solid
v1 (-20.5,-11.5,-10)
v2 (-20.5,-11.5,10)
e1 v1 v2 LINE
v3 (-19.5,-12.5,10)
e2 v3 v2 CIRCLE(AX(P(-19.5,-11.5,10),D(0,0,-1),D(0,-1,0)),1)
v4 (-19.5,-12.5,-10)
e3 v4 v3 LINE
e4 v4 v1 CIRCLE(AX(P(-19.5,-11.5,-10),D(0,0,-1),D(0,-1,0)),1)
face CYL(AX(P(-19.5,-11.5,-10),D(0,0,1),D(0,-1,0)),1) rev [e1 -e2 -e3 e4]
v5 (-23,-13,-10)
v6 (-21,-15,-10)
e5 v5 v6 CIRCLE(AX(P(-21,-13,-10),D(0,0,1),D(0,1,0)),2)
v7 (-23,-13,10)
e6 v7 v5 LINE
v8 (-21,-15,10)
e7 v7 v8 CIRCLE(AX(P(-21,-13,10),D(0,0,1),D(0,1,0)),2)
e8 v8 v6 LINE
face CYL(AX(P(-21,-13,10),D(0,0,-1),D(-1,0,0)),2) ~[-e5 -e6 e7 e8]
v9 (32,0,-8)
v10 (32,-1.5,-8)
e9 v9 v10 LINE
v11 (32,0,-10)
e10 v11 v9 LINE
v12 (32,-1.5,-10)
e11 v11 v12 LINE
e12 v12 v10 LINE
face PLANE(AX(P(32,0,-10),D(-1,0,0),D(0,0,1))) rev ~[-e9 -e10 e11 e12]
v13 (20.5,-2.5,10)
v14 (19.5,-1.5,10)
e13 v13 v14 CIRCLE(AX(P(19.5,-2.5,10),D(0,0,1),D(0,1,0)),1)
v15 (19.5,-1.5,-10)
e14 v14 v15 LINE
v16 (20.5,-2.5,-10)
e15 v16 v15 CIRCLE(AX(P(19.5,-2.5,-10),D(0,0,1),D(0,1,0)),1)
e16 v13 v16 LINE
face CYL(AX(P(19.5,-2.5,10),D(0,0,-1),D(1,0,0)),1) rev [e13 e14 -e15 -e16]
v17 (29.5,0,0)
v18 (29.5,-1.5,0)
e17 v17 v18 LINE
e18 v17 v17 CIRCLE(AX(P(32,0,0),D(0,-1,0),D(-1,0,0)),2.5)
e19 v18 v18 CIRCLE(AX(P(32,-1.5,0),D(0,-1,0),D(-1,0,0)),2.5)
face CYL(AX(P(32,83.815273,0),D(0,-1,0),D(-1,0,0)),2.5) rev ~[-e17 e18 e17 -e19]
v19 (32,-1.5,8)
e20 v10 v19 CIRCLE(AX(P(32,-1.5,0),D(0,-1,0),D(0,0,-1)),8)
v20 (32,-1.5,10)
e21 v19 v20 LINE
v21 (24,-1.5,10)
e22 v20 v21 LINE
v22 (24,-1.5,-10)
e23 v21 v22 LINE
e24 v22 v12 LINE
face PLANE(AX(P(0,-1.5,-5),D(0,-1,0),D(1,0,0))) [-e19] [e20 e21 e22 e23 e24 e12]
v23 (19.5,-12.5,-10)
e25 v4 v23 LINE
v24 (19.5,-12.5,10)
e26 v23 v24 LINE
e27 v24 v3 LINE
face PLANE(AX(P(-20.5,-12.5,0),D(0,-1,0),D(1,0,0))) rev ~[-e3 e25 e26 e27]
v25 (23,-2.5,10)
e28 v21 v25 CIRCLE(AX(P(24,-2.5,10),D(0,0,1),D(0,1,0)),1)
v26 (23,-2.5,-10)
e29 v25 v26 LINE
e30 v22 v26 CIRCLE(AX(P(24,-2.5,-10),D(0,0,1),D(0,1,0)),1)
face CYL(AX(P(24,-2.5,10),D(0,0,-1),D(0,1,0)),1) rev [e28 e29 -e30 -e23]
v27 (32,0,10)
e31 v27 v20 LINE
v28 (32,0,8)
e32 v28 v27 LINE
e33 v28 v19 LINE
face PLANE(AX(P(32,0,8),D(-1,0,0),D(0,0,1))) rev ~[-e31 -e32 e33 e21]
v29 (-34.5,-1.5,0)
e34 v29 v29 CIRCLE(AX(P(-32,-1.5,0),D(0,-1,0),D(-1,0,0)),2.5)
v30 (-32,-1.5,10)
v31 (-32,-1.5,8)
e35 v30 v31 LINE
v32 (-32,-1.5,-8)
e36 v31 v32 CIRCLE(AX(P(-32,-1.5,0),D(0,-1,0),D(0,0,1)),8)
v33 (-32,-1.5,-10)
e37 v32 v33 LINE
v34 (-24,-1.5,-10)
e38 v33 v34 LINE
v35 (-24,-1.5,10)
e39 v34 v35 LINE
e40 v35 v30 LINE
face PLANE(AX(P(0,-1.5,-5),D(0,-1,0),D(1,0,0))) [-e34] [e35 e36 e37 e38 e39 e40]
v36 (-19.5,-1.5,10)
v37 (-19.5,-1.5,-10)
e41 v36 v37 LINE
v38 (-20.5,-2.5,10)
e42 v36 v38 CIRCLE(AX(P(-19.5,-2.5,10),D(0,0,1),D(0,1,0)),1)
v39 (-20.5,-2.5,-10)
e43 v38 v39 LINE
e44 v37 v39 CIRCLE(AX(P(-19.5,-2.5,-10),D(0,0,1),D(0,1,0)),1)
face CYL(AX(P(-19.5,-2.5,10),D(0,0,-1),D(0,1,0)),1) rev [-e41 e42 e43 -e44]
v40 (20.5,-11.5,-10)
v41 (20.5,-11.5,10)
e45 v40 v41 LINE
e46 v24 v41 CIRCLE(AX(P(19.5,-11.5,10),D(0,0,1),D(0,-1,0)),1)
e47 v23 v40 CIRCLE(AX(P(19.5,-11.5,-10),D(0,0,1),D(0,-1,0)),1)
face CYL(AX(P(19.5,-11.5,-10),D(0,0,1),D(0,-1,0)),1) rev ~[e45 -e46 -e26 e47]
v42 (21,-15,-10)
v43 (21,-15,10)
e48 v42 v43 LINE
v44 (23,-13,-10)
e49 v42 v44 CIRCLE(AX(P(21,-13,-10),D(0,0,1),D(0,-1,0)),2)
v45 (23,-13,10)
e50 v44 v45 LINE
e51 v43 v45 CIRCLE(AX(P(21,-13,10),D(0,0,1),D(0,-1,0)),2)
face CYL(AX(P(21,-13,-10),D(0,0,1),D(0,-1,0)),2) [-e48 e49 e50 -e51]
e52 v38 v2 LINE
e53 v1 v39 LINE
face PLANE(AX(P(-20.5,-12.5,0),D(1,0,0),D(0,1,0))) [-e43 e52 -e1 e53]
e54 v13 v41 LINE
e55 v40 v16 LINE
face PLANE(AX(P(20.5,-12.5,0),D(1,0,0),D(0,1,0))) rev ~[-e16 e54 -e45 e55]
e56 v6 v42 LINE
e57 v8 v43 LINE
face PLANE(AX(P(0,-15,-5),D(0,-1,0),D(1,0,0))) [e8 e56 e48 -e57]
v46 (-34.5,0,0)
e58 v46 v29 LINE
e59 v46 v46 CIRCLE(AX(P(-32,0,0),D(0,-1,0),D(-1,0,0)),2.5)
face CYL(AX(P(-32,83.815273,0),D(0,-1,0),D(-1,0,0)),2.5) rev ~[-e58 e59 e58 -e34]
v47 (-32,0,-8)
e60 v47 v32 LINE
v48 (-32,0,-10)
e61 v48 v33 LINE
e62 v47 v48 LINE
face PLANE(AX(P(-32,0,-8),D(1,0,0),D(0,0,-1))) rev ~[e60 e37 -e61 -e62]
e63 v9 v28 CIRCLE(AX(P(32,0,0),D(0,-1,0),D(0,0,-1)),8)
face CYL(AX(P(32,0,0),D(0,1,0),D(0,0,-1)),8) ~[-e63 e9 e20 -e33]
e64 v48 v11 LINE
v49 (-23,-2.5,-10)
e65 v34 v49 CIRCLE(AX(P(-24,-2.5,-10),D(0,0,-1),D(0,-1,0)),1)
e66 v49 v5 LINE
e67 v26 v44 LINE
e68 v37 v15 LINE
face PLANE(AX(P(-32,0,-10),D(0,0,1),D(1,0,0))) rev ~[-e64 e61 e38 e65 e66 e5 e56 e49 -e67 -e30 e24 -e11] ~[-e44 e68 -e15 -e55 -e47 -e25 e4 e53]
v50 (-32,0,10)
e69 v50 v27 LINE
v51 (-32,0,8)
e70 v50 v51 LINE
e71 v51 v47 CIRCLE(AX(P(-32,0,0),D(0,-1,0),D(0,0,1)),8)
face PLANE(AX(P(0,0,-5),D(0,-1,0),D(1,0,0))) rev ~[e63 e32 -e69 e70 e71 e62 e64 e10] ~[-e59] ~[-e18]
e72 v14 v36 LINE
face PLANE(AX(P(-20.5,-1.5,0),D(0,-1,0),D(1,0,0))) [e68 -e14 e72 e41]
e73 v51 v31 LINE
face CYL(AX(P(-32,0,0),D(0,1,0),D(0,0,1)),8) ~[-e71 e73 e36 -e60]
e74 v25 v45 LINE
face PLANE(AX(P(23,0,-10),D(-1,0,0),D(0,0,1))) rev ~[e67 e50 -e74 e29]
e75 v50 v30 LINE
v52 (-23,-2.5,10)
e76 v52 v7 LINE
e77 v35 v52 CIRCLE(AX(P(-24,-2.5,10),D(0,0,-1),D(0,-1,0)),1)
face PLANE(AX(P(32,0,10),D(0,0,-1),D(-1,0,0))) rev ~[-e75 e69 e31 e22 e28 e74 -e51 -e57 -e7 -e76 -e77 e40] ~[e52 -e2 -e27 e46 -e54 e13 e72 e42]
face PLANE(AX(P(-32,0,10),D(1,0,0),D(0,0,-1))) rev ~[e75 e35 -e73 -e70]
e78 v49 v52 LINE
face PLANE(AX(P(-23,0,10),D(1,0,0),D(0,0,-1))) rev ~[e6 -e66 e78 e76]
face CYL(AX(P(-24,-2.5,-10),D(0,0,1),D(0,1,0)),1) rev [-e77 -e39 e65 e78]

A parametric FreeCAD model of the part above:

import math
import FreeCAD as App
import Part
import Sketcher
Q = App.Units.Quantity


def edges_at(feature, points):
    """Names of the edges that pass closest to the given points."""
    edges = feature.Shape.Edges
    near = lambda p: min(range(len(edges)), key=lambda i: edges[i].distToShape(Part.Vertex(*p))[0])
    return sorted({f"Edge{near(p) + 1}" for p in points})


def add_polygon(sketch, points):
    """Adds a closed chain of lines whose ends are joined by coincident constraints."""
    first, n = sketch.GeometryCount, len(points)
    for a, b in zip(points, points[1:] + points[:1]):
        sketch.addGeometry(Part.LineSegment(App.Vector(*a, 0), App.Vector(*b, 0)), False)
    for i in range(n):
        sketch.addConstraint(Sketcher.Constraint("Coincident", first + i, 2, first + (i + 1) % n, 1))

doc = App.newDocument("Part")
body = doc.addObject("PartDesign::Body", "Body")

sketch1 = body.newObject("Sketcher::SketchObject", "Sketch")
sketch1.AttachmentSupport = (doc.getObject("XZ_Plane"), [""])
sketch1.MapMode = "FlatFace"
sketch1.addGeometry([
    Part.LineSegment(App.Vector(32, -10, 0), App.Vector(32, -8, 0)),
    Part.ArcOfCircle(Part.Circle(App.Vector(32, 0, 0), App.Vector(0, 0, 1), 8), math.radians(-90), math.radians(90)),
    Part.LineSegment(App.Vector(32, 8, 0), App.Vector(32, 10, 0)),
    Part.LineSegment(App.Vector(32, 10, 0), App.Vector(-32, 10, 0)),
    Part.LineSegment(App.Vector(-32, 10, 0), App.Vector(-32, 8, 0)),
    Part.ArcOfCircle(Part.Circle(App.Vector(-32, 0, 0), App.Vector(0, 0, 1), 8), math.radians(90), math.radians(270)),
    Part.LineSegment(App.Vector(-32, -8, 0), App.Vector(-32, -10, 0)),
    Part.LineSegment(App.Vector(-32, -10, 0), App.Vector(32, -10, 0)),
], False)
sketch1.addConstraint([
    Sketcher.Constraint("Coincident", 0, 2, 1, 1),
    Sketcher.Constraint("Coincident", 1, 2, 2, 1),
    Sketcher.Constraint("Coincident", 2, 2, 3, 1),
    Sketcher.Constraint("Coincident", 3, 2, 4, 1),
    Sketcher.Constraint("Coincident", 4, 2, 5, 1),
    Sketcher.Constraint("Coincident", 5, 2, 6, 1),
    Sketcher.Constraint("Coincident", 6, 2, 7, 1),
    Sketcher.Constraint("Coincident", 7, 2, 0, 1),
    Sketcher.Constraint("Vertical", 0),
    Sketcher.Constraint("Vertical", 2),
    Sketcher.Constraint("Horizontal", 3),
    Sketcher.Constraint("Vertical", 4),
    Sketcher.Constraint("Vertical", 6),
    Sketcher.Constraint("Horizontal", 7),
    Sketcher.Constraint("Equal", 1, 5),
    Sketcher.Constraint("Symmetric", 1, 3, 5, 3, -1, 1),
    Sketcher.Constraint("Symmetric", 2, 2, 6, 2, -1, 1),
    Sketcher.Constraint("Symmetric", 1, 2, 4, 2, -2),
    Sketcher.Constraint("Vertical", 1, 3, 0, 2),
    Sketcher.Constraint("Vertical", 0, 2, 1, 2),
    Sketcher.Constraint("Radius", 1, Q("8 mm")),
    Sketcher.Constraint("DistanceX", 3, 2, 3, 1, Q("64 mm")),
    Sketcher.Constraint("DistanceY", 0, 1, 0, 2, Q("2 mm")),
])
pad1 = body.newObject("PartDesign::Pad", "Pad")
pad1.Profile = sketch1
pad1.Length = 1.5

sketch2 = body.newObject("Sketcher::SketchObject", "Sketch001")
sketch2.AttachmentSupport = (doc.getObject("XZ_Plane"), [""])
sketch2.MapMode = "FlatFace"
add_polygon(sketch2, [(-23, -10), (23, -10), (23, 10), (-23, 10)])
sketch2.addConstraint([
    Sketcher.Constraint("Horizontal", 0),
    Sketcher.Constraint("Vertical", 1),
    Sketcher.Constraint("Horizontal", 2),
    Sketcher.Constraint("Vertical", 3),
    Sketcher.Constraint("Symmetric", 0, 2, 2, 2, -1, 1),
    Sketcher.Constraint("DistanceX", 0, 1, 0, 2, Q("46 mm")),
    Sketcher.Constraint("DistanceY", 1, 1, 1, 2, Q("20 mm")),
])
pad2 = body.newObject("PartDesign::Pad", "Pad001")
pad2.Profile = sketch2
pad2.Length = 15

sketch3 = body.newObject("Sketcher::SketchObject", "Sketch002")
sketch3.AttachmentSupport = (doc.getObject("XY_Plane"), [""])
sketch3.MapMode = "FlatFace"
add_polygon(sketch3, [(-20, -2), (-20, -12), (20, -12), (20, -2)])
sketch3.addConstraint([
    Sketcher.Constraint("Vertical", 0),
    Sketcher.Constraint("Horizontal", 1),
    Sketcher.Constraint("Vertical", 2),
    Sketcher.Constraint("Horizontal", 3),
    Sketcher.Constraint("DistanceX", 1, 1, 1, 2, Q("41 mm")),
    Sketcher.Constraint("DistanceY", 0, 2, 0, 1, Q("11 mm")),
    Sketcher.Constraint("DistanceX", 0, 2, -1, 1, Q("20.5 mm")),
    Sketcher.Constraint("DistanceY", 0, 2, -1, 1, Q("12.5 mm")),
])
pocket1 = body.newObject("PartDesign::Pocket", "Pocket")
pocket1.Profile = sketch3
pocket1.Length = 25
pocket1.Midplane = True

sketch4 = body.newObject("Sketcher::SketchObject", "Sketch003")
sketch4.AttachmentSupport = (doc.getObject("XZ_Plane"), [""])
sketch4.MapMode = "FlatFace"
sketch4.addGeometry([
    Part.Circle(App.Vector(-32, 0, 0), App.Vector(0, 0, 1), 2.5),
    Part.Circle(App.Vector(32, 0, 0), App.Vector(0, 0, 1), 2.5),
], False)
sketch4.addConstraint([
    Sketcher.Constraint("Equal", 0, 1),
    Sketcher.Constraint("Symmetric", 0, 3, 1, 3, -1, 1),
    Sketcher.Constraint("PointOnObject", 0, 3, -1),
    Sketcher.Constraint("Diameter", 0, Q("5 mm")),
    Sketcher.Constraint("DistanceX", 0, 3, -1, 1, Q("32 mm")),
])
doc.recompute()
hole = body.newObject("PartDesign::Hole", "Hole")
hole.Profile = sketch4
hole.ThreadType = "None"
hole.Diameter = 5
hole.DepthType = "ThroughAll"
hole.Reversed = True
doc.recompute()

fillet = body.newObject("PartDesign::Fillet", "Fillet")
fillet.Base = (hole, edges_at(hole, [
    (-23, -1.5, 0),
    (-20.5, -1.5, 0),
    (23, -1.5, 0),
    (20.5, -1.5, 0),
    (-20.5, -12.5, 0),
    (20.5, -12.5, 0),
]))
fillet.Radius = 1
doc.recompute()

fillet2 = body.newObject("PartDesign::Fillet", "Fillet001")
fillet2.Base = (fillet, edges_at(fillet, [(-23, -15, 0), (23, -15, 0)]))
fillet2.Radius = 2

doc.recompute()
